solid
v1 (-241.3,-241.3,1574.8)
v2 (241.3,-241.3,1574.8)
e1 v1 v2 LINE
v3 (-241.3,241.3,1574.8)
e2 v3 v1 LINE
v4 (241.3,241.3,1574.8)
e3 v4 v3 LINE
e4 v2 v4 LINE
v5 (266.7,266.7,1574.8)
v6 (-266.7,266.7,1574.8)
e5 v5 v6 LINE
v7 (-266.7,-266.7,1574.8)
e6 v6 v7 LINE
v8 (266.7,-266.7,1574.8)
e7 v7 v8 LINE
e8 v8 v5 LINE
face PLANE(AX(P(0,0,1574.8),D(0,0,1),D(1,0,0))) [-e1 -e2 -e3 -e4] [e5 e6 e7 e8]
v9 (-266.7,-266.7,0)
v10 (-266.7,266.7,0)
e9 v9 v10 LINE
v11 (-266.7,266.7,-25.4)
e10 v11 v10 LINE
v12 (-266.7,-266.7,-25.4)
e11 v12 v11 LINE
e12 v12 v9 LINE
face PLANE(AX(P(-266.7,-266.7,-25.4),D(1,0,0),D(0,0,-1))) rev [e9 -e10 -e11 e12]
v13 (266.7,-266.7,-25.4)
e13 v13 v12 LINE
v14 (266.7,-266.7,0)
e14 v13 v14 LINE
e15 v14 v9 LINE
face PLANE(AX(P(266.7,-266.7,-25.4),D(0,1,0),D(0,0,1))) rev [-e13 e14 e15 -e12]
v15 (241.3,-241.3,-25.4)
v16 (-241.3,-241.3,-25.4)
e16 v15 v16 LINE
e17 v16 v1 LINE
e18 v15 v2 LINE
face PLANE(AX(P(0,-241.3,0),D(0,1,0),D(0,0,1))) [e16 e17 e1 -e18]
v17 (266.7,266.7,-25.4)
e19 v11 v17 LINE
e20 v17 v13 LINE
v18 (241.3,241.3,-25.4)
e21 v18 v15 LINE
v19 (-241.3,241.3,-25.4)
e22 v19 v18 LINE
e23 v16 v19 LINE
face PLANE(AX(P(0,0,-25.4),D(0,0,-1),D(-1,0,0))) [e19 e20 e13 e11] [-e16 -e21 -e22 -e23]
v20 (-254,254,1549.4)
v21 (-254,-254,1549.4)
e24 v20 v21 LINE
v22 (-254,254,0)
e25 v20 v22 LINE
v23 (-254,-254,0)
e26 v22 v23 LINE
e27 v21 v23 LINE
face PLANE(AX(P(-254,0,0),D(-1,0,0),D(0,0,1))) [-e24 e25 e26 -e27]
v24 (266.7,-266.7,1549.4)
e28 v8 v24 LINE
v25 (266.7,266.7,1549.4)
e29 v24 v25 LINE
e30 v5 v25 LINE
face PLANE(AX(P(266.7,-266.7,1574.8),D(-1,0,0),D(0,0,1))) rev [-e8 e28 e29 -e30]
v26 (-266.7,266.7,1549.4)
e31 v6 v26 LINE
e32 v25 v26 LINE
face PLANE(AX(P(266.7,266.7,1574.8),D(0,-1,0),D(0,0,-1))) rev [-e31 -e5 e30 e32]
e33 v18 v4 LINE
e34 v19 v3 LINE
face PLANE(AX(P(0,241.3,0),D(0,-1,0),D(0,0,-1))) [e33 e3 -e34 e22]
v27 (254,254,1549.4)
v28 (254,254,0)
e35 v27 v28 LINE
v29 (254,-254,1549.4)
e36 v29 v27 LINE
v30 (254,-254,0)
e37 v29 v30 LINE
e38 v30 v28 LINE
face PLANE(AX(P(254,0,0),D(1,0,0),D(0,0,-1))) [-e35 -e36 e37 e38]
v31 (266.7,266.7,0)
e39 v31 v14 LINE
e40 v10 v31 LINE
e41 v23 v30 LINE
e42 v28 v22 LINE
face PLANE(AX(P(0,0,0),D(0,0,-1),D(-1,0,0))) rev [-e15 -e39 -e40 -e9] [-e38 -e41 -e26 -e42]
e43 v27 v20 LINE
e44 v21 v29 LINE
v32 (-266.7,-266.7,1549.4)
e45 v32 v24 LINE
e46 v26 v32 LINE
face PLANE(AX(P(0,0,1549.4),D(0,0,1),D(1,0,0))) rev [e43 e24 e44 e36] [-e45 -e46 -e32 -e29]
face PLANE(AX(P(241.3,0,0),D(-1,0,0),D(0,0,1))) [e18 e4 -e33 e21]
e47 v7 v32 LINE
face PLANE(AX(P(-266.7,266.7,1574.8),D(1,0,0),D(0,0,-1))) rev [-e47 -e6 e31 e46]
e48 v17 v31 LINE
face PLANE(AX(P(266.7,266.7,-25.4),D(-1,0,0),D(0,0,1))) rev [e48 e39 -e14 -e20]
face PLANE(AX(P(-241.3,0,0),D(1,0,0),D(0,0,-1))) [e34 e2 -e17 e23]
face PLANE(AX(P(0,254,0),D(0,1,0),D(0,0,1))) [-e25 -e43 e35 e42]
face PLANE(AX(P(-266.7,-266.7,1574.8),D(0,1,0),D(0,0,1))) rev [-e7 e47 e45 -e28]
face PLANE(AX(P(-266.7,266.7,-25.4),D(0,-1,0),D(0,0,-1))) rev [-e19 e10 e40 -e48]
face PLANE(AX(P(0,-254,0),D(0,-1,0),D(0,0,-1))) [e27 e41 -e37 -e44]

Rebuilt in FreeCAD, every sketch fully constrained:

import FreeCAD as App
import Part
import Sketcher
Q = App.Units.Quantity

doc = App.newDocument("Part")
params = doc.addObject("Spreadsheet::Sheet", "Params")
for row, (alias, value) in enumerate([
    ("sketch1_width", "20 in"),
    ("sketch2_width", "20 in"),
    ("sketch3_width", "19 in"),
    ("sketch4_width", "19 in"),
    ("sketch5_width", "21 in"),
    ("sketch5_width2", "19 in"),
    ("pad1_length", "1 in"),
    ("sketch6_width", "21 in"),
    ("sketch6_width2", "19 in"),
    ("pad2_length", "1 in"),
], start=1):
    params.set(f"A{row}", alias)
    params.set(f"B{row}", "=" + value)
    params.setAlias(f"B{row}", alias)

body = doc.addObject("PartDesign::Body", "Body")

sketch1 = body.newObject("Sketcher::SketchObject", "Sketch")
sketch1.AttachmentSupport = (doc.getObject("XY_Plane"), [""])
sketch1.MapMode = "FlatFace"
sketch1.AttachmentOffset = App.Placement(App.Vector(0, 0, 61 * 25.4), App.Rotation())
sketch1.addGeometry(Part.LineSegment(App.Vector(-254, -254, 0), App.Vector(254, -254, 0)), False)
sketch1.addGeometry(Part.LineSegment(App.Vector(254, -254, 0), App.Vector(254, 254, 0)), False)
sketch1.addGeometry(Part.LineSegment(App.Vector(254, 254, 0), App.Vector(-254, 254, 0)), False)
sketch1.addGeometry(Part.LineSegment(App.Vector(-254, 254, 0), App.Vector(-254, -254, 0)), False)
sketch1.addConstraint(Sketcher.Constraint("Coincident", 0, 2, 1, 1))
sketch1.addConstraint(Sketcher.Constraint("Coincident", 1, 2, 2, 1))
sketch1.addConstraint(Sketcher.Constraint("Coincident", 2, 2, 3, 1))
sketch1.addConstraint(Sketcher.Constraint("Coincident", 3, 2, 0, 1))
sketch1.addConstraint(Sketcher.Constraint("Horizontal", 0))
sketch1.addConstraint(Sketcher.Constraint("Vertical", 1))
sketch1.addConstraint(Sketcher.Constraint("Horizontal", 2))
sketch1.addConstraint(Sketcher.Constraint("Vertical", 3))
sketch1.addConstraint(Sketcher.Constraint("Symmetric", 0, 2, 2, 2, -1, 1))
sketch1.addConstraint(Sketcher.Constraint("Equal", 2, 1))
sketch1.addConstraint(Sketcher.Constraint("DistanceX", 0, 1, 0, 2, Q("20 in")))
sketch1.setExpression("Constraints[10]", "Params.sketch1_width")

sketch2 = body.newObject("Sketcher::SketchObject", "Sketch001")
sketch2.AttachmentSupport = (doc.getObject("XY_Plane"), [""])
sketch2.MapMode = "FlatFace"
sketch2.addGeometry(Part.LineSegment(App.Vector(-254, -254, 0), App.Vector(254, -254, 0)), False)
sketch2.addGeometry(Part.LineSegment(App.Vector(254, -254, 0), App.Vector(254, 254, 0)), False)
sketch2.addGeometry(Part.LineSegment(App.Vector(254, 254, 0), App.Vector(-254, 254, 0)), False)
sketch2.addGeometry(Part.LineSegment(App.Vector(-254, 254, 0), App.Vector(-254, -254, 0)), False)
sketch2.addConstraint(Sketcher.Constraint("Coincident", 0, 2, 1, 1))
sketch2.addConstraint(Sketcher.Constraint("Coincident", 1, 2, 2, 1))
sketch2.addConstraint(Sketcher.Constraint("Coincident", 2, 2, 3, 1))
sketch2.addConstraint(Sketcher.Constraint("Coincident", 3, 2, 0, 1))
sketch2.addConstraint(Sketcher.Constraint("Horizontal", 0))
sketch2.addConstraint(Sketcher.Constraint("Vertical", 1))
sketch2.addConstraint(Sketcher.Constraint("Horizontal", 2))
sketch2.addConstraint(Sketcher.Constraint("Vertical", 3))
sketch2.addConstraint(Sketcher.Constraint("Symmetric", 0, 2, 2, 2, -1, 1))
sketch2.addConstraint(Sketcher.Constraint("Equal", 2, 1))
sketch2.addConstraint(Sketcher.Constraint("DistanceX", 0, 1, 0, 2, Q("20 in")))
sketch2.setExpression("Constraints[10]", "Params.sketch2_width")

additiveloft = body.newObject("PartDesign::AdditiveLoft", "AdditiveLoft")
additiveloft.Profile = sketch1
additiveloft.Sections = [sketch2]

sketch3 = body.newObject("Sketcher::SketchObject", "Sketch002")
sketch3.AttachmentSupport = (doc.getObject("XY_Plane"), [""])
sketch3.MapMode = "FlatFace"
sketch3.addGeometry(Part.LineSegment(App.Vector(241, -241, 0), App.Vector(-241, -241, 0)), False)
sketch3.addGeometry(Part.LineSegment(App.Vector(-241, -241, 0), App.Vector(-241, 241, 0)), False)
sketch3.addGeometry(Part.LineSegment(App.Vector(-241, 241, 0), App.Vector(241, 241, 0)), False)
sketch3.addGeometry(Part.LineSegment(App.Vector(241, 241, 0), App.Vector(241, -241, 0)), False)
sketch3.addConstraint(Sketcher.Constraint("Coincident", 0, 2, 1, 1))
sketch3.addConstraint(Sketcher.Constraint("Coincident", 1, 2, 2, 1))
sketch3.addConstraint(Sketcher.Constraint("Coincident", 2, 2, 3, 1))
sketch3.addConstraint(Sketcher.Constraint("Coincident", 3, 2, 0, 1))
sketch3.addConstraint(Sketcher.Constraint("Horizontal", 0))
sketch3.addConstraint(Sketcher.Constraint("Vertical", 1))
sketch3.addConstraint(Sketcher.Constraint("Horizontal", 2))
sketch3.addConstraint(Sketcher.Constraint("Vertical", 3))
sketch3.addConstraint(Sketcher.Constraint("Symmetric", 0, 2, 2, 2, -1, 1))
sketch3.addConstraint(Sketcher.Constraint("Equal", 2, 1))
sketch3.addConstraint(Sketcher.Constraint("DistanceX", 0, 2, 0, 1, Q("19 in")))
sketch3.setExpression("Constraints[10]", "Params.sketch3_width")

sketch4 = body.newObject("Sketcher::SketchObject", "Sketch003")
sketch4.AttachmentSupport = (doc.getObject("XY_Plane"), [""])
sketch4.MapMode = "FlatFace"
sketch4.AttachmentOffset = App.Placement(App.Vector(0, 0, 61 * 25.4), App.Rotation())
sketch4.addGeometry(Part.LineSegment(App.Vector(241, -241, 0), App.Vector(241, 241, 0)), False)
sketch4.addGeometry(Part.LineSegment(App.Vector(241, 241, 0), App.Vector(-241, 241, 0)), False)
sketch4.addGeometry(Part.LineSegment(App.Vector(-241, 241, 0), App.Vector(-241, -241, 0)), False)
sketch4.addGeometry(Part.LineSegment(App.Vector(-241, -241, 0), App.Vector(241, -241, 0)), False)
sketch4.addConstraint(Sketcher.Constraint("Coincident", 0, 2, 1, 1))
sketch4.addConstraint(Sketcher.Constraint("Coincident", 1, 2, 2, 1))
sketch4.addConstraint(Sketcher.Constraint("Coincident", 2, 2, 3, 1))
sketch4.addConstraint(Sketcher.Constraint("Coincident", 3, 2, 0, 1))
sketch4.addConstraint(Sketcher.Constraint("Vertical", 0))
sketch4.addConstraint(Sketcher.Constraint("Horizontal", 1))
sketch4.addConstraint(Sketcher.Constraint("Vertical", 2))
sketch4.addConstraint(Sketcher.Constraint("Horizontal", 3))
sketch4.addConstraint(Sketcher.Constraint("Symmetric", 0, 2, 2, 2, -1, 1))
sketch4.addConstraint(Sketcher.Constraint("Equal", 3, 0))
sketch4.addConstraint(Sketcher.Constraint("DistanceX", 1, 2, 1, 1, Q("19 in")))
sketch4.setExpression("Constraints[10]", "Params.sketch4_width")

subtractiveloft = body.newObject("PartDesign::SubtractiveLoft", "SubtractiveLoft")
subtractiveloft.Profile = sketch3
subtractiveloft.Sections = [sketch4]

sketch5 = body.newObject("Sketcher::SketchObject", "Sketch004")
sketch5.AttachmentSupport = (doc.getObject("XY_Plane"), [""])
sketch5.MapMode = "FlatFace"
sketch5.addGeometry(Part.LineSegment(App.Vector(267, 267, 0), App.Vector(267, -267, 0)), False)
sketch5.addGeometry(Part.LineSegment(App.Vector(267, -267, 0), App.Vector(-267, -267, 0)), False)
sketch5.addGeometry(Part.LineSegment(App.Vector(-267, -267, 0), App.Vector(-267, 267, 0)), False)
sketch5.addGeometry(Part.LineSegment(App.Vector(-267, 267, 0), App.Vector(267, 267, 0)), False)
sketch5.addGeometry(Part.LineSegment(App.Vector(-241, -241, 0), App.Vector(241, -241, 0)), False)
sketch5.addGeometry(Part.LineSegment(App.Vector(241, -241, 0), App.Vector(241, 241, 0)), False)
sketch5.addGeometry(Part.LineSegment(App.Vector(241, 241, 0), App.Vector(-241, 241, 0)), False)
sketch5.addGeometry(Part.LineSegment(App.Vector(-241, 241, 0), App.Vector(-241, -241, 0)), False)
sketch5.addConstraint(Sketcher.Constraint("Coincident", 0, 2, 1, 1))
sketch5.addConstraint(Sketcher.Constraint("Coincident", 1, 2, 2, 1))
sketch5.addConstraint(Sketcher.Constraint("Coincident", 2, 2, 3, 1))
sketch5.addConstraint(Sketcher.Constraint("Coincident", 3, 2, 0, 1))
sketch5.addConstraint(Sketcher.Constraint("Coincident", 4, 2, 5, 1))
sketch5.addConstraint(Sketcher.Constraint("Coincident", 5, 2, 6, 1))
sketch5.addConstraint(Sketcher.Constraint("Coincident", 6, 2, 7, 1))
sketch5.addConstraint(Sketcher.Constraint("Coincident", 7, 2, 4, 1))
sketch5.addConstraint(Sketcher.Constraint("Vertical", 0))
sketch5.addConstraint(Sketcher.Constraint("Horizontal", 1))
sketch5.addConstraint(Sketcher.Constraint("Vertical", 2))
sketch5.addConstraint(Sketcher.Constraint("Horizontal", 3))
sketch5.addConstraint(Sketcher.Constraint("Horizontal", 4))
sketch5.addConstraint(Sketcher.Constraint("Vertical", 5))
sketch5.addConstraint(Sketcher.Constraint("Horizontal", 6))
sketch5.addConstraint(Sketcher.Constraint("Vertical", 7))
sketch5.addConstraint(Sketcher.Constraint("Symmetric", 0, 2, 2, 2, -1, 1))
sketch5.addConstraint(Sketcher.Constraint("Symmetric", 4, 2, 6, 2, -1, 1))
sketch5.addConstraint(Sketcher.Constraint("Equal", 3, 0))
sketch5.addConstraint(Sketcher.Constraint("Equal", 6, 5))
sketch5.addConstraint(Sketcher.Constraint("DistanceX", 1, 2, 1, 1, Q("21 in")))
sketch5.addConstraint(Sketcher.Constraint("DistanceX", 4, 1, 4, 2, Q("19 in")))
sketch5.setExpression("Constraints[20]", "Params.sketch5_width")
sketch5.setExpression("Constraints[21]", "Params.sketch5_width2")
pad1 = body.newObject("PartDesign::Pad", "Pad")
pad1.Profile = sketch5
pad1.setExpression("Length", "Params.pad1_length")
pad1.Reversed = True

sketch6 = body.newObject("Sketcher::SketchObject", "Sketch005")
sketch6.AttachmentSupport = (doc.getObject("XY_Plane"), [""])
sketch6.MapMode = "FlatFace"
sketch6.AttachmentOffset = App.Placement(App.Vector(0, 0, 61 * 25.4), App.Rotation())
sketch6.addGeometry(Part.LineSegment(App.Vector(-267, 267, 0), App.Vector(-267, -267, 0)), False)
sketch6.addGeometry(Part.LineSegment(App.Vector(-267, -267, 0), App.Vector(267, -267, 0)), False)
sketch6.addGeometry(Part.LineSegment(App.Vector(267, -267, 0), App.Vector(267, 267, 0)), False)
sketch6.addGeometry(Part.LineSegment(App.Vector(267, 267, 0), App.Vector(-267, 267, 0)), False)
sketch6.addGeometry(Part.LineSegment(App.Vector(241, -241, 0), App.Vector(-241, -241, 0)), False)
sketch6.addGeometry(Part.LineSegment(App.Vector(-241, -241, 0), App.Vector(-241, 241, 0)), False)
sketch6.addGeometry(Part.LineSegment(App.Vector(-241, 241, 0), App.Vector(241, 241, 0)), False)
sketch6.addGeometry(Part.LineSegment(App.Vector(241, 241, 0), App.Vector(241, -241, 0)), False)
sketch6.addConstraint(Sketcher.Constraint("Coincident", 0, 2, 1, 1))
sketch6.addConstraint(Sketcher.Constraint("Coincident", 1, 2, 2, 1))
sketch6.addConstraint(Sketcher.Constraint("Coincident", 2, 2, 3, 1))
sketch6.addConstraint(Sketcher.Constraint("Coincident", 3, 2, 0, 1))
sketch6.addConstraint(Sketcher.Constraint("Coincident", 4, 2, 5, 1))
sketch6.addConstraint(Sketcher.Constraint("Coincident", 5, 2, 6, 1))
sketch6.addConstraint(Sketcher.Constraint("Coincident", 6, 2, 7, 1))
sketch6.addConstraint(Sketcher.Constraint("Coincident", 7, 2, 4, 1))
sketch6.addConstraint(Sketcher.Constraint("Vertical", 0))
sketch6.addConstraint(Sketcher.Constraint("Horizontal", 1))
sketch6.addConstraint(Sketcher.Constraint("Vertical", 2))
sketch6.addConstraint(Sketcher.Constraint("Horizontal", 3))
sketch6.addConstraint(Sketcher.Constraint("Horizontal", 4))
sketch6.addConstraint(Sketcher.Constraint("Vertical", 5))
sketch6.addConstraint(Sketcher.Constraint("Horizontal", 6))
sketch6.addConstraint(Sketcher.Constraint("Vertical", 7))
sketch6.addConstraint(Sketcher.Constraint("Symmetric", 0, 2, 2, 2, -1, 1))
sketch6.addConstraint(Sketcher.Constraint("Symmetric", 4, 2, 6, 2, -1, 1))
sketch6.addConstraint(Sketcher.Constraint("Equal", 3, 0))
sketch6.addConstraint(Sketcher.Constraint("Equal", 6, 5))
sketch6.addConstraint(Sketcher.Constraint("DistanceX", 1, 1, 1, 2, Q("21 in")))
sketch6.addConstraint(Sketcher.Constraint("DistanceX", 4, 2, 4, 1, Q("19 in")))
sketch6.setExpression("Constraints[20]", "Params.sketch6_width")
sketch6.setExpression("Constraints[21]", "Params.sketch6_width2")
pad2 = body.newObject("PartDesign::Pad", "Pad001")
pad2.Profile = sketch6
pad2.setExpression("Length", "Params.pad2_length")

doc.recompute()
